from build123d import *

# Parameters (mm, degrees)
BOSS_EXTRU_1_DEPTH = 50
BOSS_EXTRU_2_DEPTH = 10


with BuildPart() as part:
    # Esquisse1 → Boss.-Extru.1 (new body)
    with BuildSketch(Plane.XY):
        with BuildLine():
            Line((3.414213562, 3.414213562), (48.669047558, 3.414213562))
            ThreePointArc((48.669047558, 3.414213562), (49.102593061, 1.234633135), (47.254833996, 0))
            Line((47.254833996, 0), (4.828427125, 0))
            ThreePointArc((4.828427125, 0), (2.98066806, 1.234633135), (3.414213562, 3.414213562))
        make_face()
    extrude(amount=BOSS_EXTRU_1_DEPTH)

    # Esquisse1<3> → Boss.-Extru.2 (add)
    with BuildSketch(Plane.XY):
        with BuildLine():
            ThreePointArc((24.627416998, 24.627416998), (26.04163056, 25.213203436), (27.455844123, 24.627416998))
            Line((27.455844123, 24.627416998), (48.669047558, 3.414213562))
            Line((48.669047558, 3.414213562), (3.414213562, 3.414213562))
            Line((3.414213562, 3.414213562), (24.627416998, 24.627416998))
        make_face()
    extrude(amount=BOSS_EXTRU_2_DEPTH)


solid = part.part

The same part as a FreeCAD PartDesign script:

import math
import FreeCAD as App
import Part
import Sketcher

V = App.Vector
Q = App.Units.Quantity

doc = App.newDocument("Part")
body = doc.addObject("PartDesign::Body", "Body")

# Sketch on XY plane
sketch1 = body.newObject("Sketcher::SketchObject", "Sketch")
sketch1.AttachmentSupport = (doc.getObject("XY_Plane"), [""])
sketch1.MapMode = "FlatFace"
sketch1.addGeometry(Part.LineSegment(V(48.7, 3.4, 0), V(3.4, 3.4, 0)), False)
sketch1.addGeometry(Part.ArcOfCircle(Part.Circle(V(4.8, 2, 0), V(0, 0, 1), 2), math.radians(135), math.radians(270)), False)
sketch1.addGeometry(Part.LineSegment(V(4.8, 0, 0), V(47.3, 0, 0)), False)
sketch1.addGeometry(Part.ArcOfCircle(Part.Circle(V(47.3, 2, 0), V(0, 0, 1), 2), math.radians(-90), math.radians(45)), False)
sketch1.addConstraint(Sketcher.Constraint("Coincident", 0, 2, 1, 1))
sketch1.addConstraint(Sketcher.Constraint("Tangent", 1, 2, 2, 1))
sketch1.addConstraint(Sketcher.Constraint("Tangent", 2, 2, 3, 1))
sketch1.addConstraint(Sketcher.Constraint("Coincident", 3, 2, 0, 1))
sketch1.addConstraint(Sketcher.Constraint("Horizontal", 0))
sketch1.addConstraint(Sketcher.Constraint("Horizontal", 2))
sketch1.addConstraint(Sketcher.Constraint("Equal", 1, 3))
sketch1.addConstraint(Sketcher.Constraint("PointOnObject", 1, 2, -1))
sketch1.addConstraint(Sketcher.Constraint("Radius", 1, Q("2 mm")))
sketch1.addConstraint(Sketcher.Constraint("DistanceX", 0, 2, 0, 1, Q("45.254834 mm")))
sketch1.addConstraint(Sketcher.Constraint("DistanceX", 2, 1, 2, 2, Q("42.426407 mm")))
sketch1.addConstraint(Sketcher.Constraint("DistanceX", -1, 1, 1, 3, Q("4.828427 mm")))
pad1 = body.newObject("PartDesign::Pad", "Pad")
pad1.Profile = sketch1
pad1.Length = 50

# Sketch on XY plane
sketch2 = body.newObject("Sketcher::SketchObject", "Sketch001")
sketch2.AttachmentSupport = (doc.getObject("XY_Plane"), [""])
sketch2.MapMode = "FlatFace"
sketch2.addGeometry(Part.ArcOfCircle(Part.Circle(V(26, 23.2, 0), V(0, 0, 1), 2), math.radians(45), math.radians(135)), False)
sketch2.addGeometry(Part.LineSegment(V(24.6, 24.6, 0), V(3.4, 3.4, 0)), False)
sketch2.addGeometry(Part.LineSegment(V(3.4, 3.4, 0), V(48.7, 3.4, 0)), False)
sketch2.addGeometry(Part.LineSegment(V(48.7, 3.4, 0), V(27.5, 24.6, 0)), False)
sketch2.addConstraint(Sketcher.Constraint("Tangent", 0, 2, 1, 1))
sketch2.addConstraint(Sketcher.Constraint("Coincident", 1, 2, 2, 1))
sketch2.addConstraint(Sketcher.Constraint("Coincident", 2, 2, 3, 1))
sketch2.addConstraint(Sketcher.Constraint("Tangent", 3, 2, 0, 1))
sketch2.addConstraint(Sketcher.Constraint("Horizontal", 2))
sketch2.addConstraint(Sketcher.Constraint("Perpendicular", 1, 3))
sketch2.addConstraint(Sketcher.Constraint("Horizontal", 0, 2, 3, 2))
sketch2.addConstraint(Sketcher.Constraint("Radius", 0, Q("2 mm")))
sketch2.addConstraint(Sketcher.Constraint("Distance", 1, Q("30 mm")))
sketch2.addConstraint(Sketcher.Constraint("DistanceX", -1, 1, 0, 3, Q("26.041631 mm")))
sketch2.addConstraint(Sketcher.Constraint("DistanceY", -1, 1, 0, 3, Q("23.213203 mm")))
pad2 = body.newObject("PartDesign::Pad", "Pad001")
pad2.Profile = sketch2
pad2.Length = 10

doc.recompute()
